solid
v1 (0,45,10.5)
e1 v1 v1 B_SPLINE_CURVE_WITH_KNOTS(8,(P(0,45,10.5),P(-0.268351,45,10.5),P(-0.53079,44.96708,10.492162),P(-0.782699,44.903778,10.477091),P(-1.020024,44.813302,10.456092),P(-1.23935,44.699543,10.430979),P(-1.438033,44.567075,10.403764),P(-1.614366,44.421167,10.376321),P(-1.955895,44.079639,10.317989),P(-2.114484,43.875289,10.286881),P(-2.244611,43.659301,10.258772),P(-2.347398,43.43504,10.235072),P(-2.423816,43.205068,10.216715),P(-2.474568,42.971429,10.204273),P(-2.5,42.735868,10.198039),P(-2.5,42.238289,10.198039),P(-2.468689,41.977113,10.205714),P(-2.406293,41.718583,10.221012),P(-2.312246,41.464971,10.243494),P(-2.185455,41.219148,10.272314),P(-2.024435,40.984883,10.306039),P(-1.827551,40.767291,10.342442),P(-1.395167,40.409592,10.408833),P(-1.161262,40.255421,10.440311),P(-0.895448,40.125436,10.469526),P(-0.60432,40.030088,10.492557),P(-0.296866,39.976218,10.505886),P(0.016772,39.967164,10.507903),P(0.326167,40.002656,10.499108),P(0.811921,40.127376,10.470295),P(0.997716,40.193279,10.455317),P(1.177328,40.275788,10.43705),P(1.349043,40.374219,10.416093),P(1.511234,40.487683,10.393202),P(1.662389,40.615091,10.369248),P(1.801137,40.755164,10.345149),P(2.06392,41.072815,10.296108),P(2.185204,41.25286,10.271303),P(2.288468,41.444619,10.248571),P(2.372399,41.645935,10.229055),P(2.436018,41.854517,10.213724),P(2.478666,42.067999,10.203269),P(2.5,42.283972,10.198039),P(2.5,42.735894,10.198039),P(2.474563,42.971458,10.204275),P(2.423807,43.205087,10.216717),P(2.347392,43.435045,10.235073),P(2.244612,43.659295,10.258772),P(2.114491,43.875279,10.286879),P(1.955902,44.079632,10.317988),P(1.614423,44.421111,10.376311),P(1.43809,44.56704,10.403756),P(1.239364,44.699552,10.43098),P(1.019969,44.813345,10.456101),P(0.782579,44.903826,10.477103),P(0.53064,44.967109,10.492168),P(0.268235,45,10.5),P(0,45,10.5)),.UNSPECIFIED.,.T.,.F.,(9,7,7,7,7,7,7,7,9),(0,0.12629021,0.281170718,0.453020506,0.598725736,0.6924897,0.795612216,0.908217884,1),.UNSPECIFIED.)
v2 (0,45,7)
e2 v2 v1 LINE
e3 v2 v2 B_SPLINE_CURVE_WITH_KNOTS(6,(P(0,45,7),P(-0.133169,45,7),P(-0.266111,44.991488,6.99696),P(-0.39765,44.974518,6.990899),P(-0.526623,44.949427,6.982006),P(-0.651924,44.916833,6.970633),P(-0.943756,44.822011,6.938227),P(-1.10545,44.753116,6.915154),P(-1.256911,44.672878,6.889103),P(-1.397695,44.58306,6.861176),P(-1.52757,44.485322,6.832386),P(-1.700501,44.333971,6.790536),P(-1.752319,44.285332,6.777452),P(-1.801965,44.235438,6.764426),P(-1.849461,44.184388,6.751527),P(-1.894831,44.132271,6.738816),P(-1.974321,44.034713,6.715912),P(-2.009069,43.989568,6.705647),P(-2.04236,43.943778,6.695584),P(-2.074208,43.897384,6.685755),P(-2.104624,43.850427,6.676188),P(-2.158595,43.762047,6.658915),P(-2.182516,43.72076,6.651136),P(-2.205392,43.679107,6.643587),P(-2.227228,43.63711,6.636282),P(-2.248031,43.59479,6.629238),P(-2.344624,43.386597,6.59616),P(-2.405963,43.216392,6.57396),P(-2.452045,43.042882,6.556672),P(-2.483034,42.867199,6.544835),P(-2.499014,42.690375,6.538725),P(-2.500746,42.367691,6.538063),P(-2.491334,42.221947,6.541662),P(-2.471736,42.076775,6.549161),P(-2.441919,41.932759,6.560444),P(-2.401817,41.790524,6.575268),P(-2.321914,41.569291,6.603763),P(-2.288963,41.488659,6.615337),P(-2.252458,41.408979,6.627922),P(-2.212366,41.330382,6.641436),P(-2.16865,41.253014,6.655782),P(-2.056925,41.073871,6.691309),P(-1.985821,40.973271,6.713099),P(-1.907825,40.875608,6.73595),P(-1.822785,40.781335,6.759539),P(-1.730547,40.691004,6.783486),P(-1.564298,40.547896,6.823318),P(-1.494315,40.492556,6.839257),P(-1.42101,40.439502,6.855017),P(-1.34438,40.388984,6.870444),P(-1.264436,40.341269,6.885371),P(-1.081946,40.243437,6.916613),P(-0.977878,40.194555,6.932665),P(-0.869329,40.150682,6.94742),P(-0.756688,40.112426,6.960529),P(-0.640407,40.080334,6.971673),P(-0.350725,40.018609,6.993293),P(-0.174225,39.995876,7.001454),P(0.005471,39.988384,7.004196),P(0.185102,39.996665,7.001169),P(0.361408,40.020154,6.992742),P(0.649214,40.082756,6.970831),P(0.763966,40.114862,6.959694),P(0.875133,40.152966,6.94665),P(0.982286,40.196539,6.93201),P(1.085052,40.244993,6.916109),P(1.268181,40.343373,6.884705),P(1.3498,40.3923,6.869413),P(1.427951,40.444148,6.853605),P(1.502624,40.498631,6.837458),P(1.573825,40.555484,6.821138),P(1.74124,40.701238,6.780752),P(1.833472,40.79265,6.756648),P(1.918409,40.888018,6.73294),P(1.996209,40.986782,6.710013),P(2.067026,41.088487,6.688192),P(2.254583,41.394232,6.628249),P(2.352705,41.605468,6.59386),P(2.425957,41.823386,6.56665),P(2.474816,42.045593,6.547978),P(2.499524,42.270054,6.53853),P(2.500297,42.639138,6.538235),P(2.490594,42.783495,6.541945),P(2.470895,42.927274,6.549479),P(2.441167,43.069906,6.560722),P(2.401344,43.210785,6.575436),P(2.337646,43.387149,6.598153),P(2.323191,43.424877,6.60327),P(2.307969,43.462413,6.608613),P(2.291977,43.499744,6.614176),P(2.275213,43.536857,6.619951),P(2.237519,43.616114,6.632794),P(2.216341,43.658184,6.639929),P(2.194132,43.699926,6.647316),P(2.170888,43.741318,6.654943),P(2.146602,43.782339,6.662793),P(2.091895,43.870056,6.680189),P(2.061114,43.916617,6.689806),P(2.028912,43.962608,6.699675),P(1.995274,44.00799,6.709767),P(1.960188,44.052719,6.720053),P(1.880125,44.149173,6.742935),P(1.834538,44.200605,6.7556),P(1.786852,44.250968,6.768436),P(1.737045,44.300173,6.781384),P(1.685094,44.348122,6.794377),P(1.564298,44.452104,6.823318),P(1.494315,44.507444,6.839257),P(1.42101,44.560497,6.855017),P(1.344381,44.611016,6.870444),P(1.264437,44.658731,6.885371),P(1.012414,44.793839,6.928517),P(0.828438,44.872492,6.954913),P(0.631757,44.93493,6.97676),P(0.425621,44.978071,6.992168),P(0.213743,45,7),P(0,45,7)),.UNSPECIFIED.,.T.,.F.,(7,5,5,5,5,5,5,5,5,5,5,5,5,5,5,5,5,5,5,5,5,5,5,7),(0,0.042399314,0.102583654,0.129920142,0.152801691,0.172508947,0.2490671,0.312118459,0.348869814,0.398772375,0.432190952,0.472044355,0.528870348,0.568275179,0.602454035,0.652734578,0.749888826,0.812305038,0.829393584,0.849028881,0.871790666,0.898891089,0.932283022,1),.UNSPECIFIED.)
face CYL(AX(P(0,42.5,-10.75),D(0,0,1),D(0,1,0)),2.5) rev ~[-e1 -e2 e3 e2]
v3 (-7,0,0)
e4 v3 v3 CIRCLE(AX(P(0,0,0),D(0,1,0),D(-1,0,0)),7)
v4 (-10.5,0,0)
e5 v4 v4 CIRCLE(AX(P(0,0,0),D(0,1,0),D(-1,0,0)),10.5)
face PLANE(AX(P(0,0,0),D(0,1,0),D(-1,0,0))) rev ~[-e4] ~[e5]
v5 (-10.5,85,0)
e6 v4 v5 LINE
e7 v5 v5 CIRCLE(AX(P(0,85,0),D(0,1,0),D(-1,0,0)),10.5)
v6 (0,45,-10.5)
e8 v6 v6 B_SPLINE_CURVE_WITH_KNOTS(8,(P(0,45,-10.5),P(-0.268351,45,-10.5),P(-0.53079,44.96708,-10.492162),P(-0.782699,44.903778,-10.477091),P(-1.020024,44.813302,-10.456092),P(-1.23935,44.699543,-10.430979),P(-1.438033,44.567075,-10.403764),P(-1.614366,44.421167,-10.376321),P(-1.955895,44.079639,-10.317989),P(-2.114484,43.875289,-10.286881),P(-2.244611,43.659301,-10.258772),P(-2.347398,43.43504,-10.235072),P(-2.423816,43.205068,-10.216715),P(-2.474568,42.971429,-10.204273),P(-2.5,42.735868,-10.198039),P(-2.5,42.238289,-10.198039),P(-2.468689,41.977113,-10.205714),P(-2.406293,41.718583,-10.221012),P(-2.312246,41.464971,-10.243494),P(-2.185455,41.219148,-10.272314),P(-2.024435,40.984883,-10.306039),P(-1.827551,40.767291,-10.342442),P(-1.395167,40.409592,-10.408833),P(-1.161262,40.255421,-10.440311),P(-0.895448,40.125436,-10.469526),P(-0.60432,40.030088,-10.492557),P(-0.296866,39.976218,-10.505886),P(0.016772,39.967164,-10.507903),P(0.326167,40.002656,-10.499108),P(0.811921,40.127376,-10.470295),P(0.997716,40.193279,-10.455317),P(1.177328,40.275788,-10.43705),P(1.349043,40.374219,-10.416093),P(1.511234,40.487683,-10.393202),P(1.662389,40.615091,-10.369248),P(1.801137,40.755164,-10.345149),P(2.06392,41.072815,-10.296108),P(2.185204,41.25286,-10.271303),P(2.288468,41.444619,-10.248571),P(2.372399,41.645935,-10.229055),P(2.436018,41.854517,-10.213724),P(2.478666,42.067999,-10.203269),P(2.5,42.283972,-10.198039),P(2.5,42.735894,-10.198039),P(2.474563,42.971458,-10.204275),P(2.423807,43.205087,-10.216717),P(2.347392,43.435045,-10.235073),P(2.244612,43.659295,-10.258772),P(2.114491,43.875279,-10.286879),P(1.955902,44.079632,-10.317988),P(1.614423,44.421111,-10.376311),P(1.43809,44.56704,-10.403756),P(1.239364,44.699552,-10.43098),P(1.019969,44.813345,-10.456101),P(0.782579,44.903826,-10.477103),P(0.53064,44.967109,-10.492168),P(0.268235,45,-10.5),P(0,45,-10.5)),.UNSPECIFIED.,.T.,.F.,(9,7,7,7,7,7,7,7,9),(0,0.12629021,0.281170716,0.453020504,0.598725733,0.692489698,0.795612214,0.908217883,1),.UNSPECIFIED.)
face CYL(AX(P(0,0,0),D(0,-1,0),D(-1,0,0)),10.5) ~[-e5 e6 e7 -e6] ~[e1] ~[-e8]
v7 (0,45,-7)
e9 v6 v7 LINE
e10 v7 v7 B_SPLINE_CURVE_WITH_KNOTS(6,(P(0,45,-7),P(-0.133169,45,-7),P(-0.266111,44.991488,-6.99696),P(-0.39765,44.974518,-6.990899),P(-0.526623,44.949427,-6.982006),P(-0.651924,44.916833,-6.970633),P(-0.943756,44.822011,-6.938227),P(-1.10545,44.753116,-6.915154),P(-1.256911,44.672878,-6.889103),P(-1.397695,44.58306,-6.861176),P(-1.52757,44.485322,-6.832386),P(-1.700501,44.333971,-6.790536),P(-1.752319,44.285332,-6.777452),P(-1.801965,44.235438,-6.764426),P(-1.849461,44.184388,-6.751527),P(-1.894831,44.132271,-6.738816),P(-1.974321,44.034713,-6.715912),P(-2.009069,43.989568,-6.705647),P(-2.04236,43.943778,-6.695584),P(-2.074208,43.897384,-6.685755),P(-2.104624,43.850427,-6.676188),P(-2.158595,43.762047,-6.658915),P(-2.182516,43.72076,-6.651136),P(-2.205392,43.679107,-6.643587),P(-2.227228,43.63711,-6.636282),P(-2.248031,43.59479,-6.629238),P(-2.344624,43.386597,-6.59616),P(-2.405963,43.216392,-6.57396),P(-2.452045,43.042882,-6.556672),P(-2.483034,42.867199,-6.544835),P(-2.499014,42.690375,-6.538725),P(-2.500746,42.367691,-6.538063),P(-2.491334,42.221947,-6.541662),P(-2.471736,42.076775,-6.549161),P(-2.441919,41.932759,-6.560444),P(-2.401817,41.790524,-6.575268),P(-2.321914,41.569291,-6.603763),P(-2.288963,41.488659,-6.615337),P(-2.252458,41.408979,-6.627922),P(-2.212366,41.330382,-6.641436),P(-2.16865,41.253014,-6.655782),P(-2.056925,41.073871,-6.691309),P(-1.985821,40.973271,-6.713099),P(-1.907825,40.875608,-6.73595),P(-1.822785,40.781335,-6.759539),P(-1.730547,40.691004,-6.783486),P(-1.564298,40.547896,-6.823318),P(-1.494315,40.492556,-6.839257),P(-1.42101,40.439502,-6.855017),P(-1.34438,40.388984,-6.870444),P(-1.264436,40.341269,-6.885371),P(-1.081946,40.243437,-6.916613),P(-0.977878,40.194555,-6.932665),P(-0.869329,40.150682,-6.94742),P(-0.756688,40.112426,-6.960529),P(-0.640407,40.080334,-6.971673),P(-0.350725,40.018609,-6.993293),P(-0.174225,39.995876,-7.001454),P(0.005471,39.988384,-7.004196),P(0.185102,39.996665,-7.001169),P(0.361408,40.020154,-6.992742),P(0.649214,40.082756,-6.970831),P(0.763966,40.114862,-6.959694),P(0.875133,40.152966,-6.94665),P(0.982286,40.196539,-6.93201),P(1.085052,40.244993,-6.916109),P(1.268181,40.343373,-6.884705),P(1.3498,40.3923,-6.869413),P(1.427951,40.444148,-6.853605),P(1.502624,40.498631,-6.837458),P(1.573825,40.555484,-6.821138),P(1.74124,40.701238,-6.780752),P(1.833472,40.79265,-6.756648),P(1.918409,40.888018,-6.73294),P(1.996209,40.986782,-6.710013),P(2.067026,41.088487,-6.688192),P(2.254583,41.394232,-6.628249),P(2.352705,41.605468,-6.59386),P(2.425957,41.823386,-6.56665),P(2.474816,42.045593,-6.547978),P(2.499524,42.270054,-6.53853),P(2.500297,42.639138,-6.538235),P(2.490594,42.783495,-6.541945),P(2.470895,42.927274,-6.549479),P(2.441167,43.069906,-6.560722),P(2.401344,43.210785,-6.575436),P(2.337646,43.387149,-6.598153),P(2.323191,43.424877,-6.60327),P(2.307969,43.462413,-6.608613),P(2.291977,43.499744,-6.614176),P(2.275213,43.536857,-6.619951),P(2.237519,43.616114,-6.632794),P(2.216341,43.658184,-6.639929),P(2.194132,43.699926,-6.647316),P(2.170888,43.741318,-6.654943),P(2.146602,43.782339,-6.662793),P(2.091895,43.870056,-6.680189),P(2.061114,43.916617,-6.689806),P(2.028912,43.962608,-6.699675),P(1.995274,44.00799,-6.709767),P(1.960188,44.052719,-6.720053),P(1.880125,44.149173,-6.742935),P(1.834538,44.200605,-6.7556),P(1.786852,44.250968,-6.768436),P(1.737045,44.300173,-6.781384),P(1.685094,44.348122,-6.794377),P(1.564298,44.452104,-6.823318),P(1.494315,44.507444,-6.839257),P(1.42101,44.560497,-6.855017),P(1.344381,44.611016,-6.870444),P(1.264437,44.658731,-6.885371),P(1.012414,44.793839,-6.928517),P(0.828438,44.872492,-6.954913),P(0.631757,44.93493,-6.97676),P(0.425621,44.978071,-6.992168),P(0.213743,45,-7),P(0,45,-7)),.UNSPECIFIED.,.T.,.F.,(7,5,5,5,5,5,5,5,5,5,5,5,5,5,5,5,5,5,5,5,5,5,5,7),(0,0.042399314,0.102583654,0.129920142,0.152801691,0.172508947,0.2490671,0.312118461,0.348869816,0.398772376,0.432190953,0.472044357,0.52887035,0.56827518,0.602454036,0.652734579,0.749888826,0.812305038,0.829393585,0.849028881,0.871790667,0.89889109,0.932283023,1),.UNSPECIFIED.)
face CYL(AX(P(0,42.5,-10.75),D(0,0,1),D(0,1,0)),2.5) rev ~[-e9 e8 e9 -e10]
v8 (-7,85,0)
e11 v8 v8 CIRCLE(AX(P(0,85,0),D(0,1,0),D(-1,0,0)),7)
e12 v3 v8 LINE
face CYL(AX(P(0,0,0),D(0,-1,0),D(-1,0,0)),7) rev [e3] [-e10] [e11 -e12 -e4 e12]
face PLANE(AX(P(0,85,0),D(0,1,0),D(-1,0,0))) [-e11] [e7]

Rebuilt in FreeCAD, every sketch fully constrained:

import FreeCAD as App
import Part
import Sketcher
Q = App.Units.Quantity

doc = App.newDocument("Part")
body = doc.addObject("PartDesign::Body", "Body")

# Sketch on XZ plane
sketch1 = body.newObject("Sketcher::SketchObject", "Sketch")
sketch1.AttachmentSupport = (doc.getObject("XZ_Plane"), [""])
sketch1.MapMode = "FlatFace"
sketch1.addGeometry([
    Part.Circle(App.Vector(0, 0, 0), App.Vector(0, 0, 1), 10.5),
    Part.Circle(App.Vector(0, 0, 0), App.Vector(0, 0, 1), 7),
], False)
sketch1.addConstraint([
    Sketcher.Constraint("Coincident", 0, 3, -1, 1),
    Sketcher.Constraint("Coincident", 1, 3, -1, 1),
    Sketcher.Constraint("Diameter", 0, Q("21 mm")),
    Sketcher.Constraint("Diameter", 1, Q("14 mm")),
])
pad1 = body.newObject("PartDesign::Pad", "Pad")
pad1.Profile = sketch1
pad1.Length = 85
pad1.Reversed = True

# Sketch on XY plane
sketch2 = body.newObject("Sketcher::SketchObject", "Sketch001")
sketch2.AttachmentSupport = (doc.getObject("XY_Plane"), [""])
sketch2.MapMode = "FlatFace"
sketch2.AttachmentOffset = App.Placement(App.Vector(0, 0, -10.75), App.Rotation())
sketch2.addGeometry(Part.Circle(App.Vector(0, 42.5, 0), App.Vector(0, 0, 1), 2.5), False)
sketch2.addConstraint([
    Sketcher.Constraint("PointOnObject", 0, 3, -2),
    Sketcher.Constraint("Diameter", 0, Q("5 mm")),
    Sketcher.Constraint("DistanceY", -1, 1, 0, 3, Q("42.5 mm")),
])
doc.recompute()
hole = body.newObject("PartDesign::Hole", "Hole")
hole.Profile = sketch2
hole.ThreadType = "None"
hole.Diameter = 5
hole.DepthType = "ThroughAll"
hole.Reversed = True

doc.recompute()
